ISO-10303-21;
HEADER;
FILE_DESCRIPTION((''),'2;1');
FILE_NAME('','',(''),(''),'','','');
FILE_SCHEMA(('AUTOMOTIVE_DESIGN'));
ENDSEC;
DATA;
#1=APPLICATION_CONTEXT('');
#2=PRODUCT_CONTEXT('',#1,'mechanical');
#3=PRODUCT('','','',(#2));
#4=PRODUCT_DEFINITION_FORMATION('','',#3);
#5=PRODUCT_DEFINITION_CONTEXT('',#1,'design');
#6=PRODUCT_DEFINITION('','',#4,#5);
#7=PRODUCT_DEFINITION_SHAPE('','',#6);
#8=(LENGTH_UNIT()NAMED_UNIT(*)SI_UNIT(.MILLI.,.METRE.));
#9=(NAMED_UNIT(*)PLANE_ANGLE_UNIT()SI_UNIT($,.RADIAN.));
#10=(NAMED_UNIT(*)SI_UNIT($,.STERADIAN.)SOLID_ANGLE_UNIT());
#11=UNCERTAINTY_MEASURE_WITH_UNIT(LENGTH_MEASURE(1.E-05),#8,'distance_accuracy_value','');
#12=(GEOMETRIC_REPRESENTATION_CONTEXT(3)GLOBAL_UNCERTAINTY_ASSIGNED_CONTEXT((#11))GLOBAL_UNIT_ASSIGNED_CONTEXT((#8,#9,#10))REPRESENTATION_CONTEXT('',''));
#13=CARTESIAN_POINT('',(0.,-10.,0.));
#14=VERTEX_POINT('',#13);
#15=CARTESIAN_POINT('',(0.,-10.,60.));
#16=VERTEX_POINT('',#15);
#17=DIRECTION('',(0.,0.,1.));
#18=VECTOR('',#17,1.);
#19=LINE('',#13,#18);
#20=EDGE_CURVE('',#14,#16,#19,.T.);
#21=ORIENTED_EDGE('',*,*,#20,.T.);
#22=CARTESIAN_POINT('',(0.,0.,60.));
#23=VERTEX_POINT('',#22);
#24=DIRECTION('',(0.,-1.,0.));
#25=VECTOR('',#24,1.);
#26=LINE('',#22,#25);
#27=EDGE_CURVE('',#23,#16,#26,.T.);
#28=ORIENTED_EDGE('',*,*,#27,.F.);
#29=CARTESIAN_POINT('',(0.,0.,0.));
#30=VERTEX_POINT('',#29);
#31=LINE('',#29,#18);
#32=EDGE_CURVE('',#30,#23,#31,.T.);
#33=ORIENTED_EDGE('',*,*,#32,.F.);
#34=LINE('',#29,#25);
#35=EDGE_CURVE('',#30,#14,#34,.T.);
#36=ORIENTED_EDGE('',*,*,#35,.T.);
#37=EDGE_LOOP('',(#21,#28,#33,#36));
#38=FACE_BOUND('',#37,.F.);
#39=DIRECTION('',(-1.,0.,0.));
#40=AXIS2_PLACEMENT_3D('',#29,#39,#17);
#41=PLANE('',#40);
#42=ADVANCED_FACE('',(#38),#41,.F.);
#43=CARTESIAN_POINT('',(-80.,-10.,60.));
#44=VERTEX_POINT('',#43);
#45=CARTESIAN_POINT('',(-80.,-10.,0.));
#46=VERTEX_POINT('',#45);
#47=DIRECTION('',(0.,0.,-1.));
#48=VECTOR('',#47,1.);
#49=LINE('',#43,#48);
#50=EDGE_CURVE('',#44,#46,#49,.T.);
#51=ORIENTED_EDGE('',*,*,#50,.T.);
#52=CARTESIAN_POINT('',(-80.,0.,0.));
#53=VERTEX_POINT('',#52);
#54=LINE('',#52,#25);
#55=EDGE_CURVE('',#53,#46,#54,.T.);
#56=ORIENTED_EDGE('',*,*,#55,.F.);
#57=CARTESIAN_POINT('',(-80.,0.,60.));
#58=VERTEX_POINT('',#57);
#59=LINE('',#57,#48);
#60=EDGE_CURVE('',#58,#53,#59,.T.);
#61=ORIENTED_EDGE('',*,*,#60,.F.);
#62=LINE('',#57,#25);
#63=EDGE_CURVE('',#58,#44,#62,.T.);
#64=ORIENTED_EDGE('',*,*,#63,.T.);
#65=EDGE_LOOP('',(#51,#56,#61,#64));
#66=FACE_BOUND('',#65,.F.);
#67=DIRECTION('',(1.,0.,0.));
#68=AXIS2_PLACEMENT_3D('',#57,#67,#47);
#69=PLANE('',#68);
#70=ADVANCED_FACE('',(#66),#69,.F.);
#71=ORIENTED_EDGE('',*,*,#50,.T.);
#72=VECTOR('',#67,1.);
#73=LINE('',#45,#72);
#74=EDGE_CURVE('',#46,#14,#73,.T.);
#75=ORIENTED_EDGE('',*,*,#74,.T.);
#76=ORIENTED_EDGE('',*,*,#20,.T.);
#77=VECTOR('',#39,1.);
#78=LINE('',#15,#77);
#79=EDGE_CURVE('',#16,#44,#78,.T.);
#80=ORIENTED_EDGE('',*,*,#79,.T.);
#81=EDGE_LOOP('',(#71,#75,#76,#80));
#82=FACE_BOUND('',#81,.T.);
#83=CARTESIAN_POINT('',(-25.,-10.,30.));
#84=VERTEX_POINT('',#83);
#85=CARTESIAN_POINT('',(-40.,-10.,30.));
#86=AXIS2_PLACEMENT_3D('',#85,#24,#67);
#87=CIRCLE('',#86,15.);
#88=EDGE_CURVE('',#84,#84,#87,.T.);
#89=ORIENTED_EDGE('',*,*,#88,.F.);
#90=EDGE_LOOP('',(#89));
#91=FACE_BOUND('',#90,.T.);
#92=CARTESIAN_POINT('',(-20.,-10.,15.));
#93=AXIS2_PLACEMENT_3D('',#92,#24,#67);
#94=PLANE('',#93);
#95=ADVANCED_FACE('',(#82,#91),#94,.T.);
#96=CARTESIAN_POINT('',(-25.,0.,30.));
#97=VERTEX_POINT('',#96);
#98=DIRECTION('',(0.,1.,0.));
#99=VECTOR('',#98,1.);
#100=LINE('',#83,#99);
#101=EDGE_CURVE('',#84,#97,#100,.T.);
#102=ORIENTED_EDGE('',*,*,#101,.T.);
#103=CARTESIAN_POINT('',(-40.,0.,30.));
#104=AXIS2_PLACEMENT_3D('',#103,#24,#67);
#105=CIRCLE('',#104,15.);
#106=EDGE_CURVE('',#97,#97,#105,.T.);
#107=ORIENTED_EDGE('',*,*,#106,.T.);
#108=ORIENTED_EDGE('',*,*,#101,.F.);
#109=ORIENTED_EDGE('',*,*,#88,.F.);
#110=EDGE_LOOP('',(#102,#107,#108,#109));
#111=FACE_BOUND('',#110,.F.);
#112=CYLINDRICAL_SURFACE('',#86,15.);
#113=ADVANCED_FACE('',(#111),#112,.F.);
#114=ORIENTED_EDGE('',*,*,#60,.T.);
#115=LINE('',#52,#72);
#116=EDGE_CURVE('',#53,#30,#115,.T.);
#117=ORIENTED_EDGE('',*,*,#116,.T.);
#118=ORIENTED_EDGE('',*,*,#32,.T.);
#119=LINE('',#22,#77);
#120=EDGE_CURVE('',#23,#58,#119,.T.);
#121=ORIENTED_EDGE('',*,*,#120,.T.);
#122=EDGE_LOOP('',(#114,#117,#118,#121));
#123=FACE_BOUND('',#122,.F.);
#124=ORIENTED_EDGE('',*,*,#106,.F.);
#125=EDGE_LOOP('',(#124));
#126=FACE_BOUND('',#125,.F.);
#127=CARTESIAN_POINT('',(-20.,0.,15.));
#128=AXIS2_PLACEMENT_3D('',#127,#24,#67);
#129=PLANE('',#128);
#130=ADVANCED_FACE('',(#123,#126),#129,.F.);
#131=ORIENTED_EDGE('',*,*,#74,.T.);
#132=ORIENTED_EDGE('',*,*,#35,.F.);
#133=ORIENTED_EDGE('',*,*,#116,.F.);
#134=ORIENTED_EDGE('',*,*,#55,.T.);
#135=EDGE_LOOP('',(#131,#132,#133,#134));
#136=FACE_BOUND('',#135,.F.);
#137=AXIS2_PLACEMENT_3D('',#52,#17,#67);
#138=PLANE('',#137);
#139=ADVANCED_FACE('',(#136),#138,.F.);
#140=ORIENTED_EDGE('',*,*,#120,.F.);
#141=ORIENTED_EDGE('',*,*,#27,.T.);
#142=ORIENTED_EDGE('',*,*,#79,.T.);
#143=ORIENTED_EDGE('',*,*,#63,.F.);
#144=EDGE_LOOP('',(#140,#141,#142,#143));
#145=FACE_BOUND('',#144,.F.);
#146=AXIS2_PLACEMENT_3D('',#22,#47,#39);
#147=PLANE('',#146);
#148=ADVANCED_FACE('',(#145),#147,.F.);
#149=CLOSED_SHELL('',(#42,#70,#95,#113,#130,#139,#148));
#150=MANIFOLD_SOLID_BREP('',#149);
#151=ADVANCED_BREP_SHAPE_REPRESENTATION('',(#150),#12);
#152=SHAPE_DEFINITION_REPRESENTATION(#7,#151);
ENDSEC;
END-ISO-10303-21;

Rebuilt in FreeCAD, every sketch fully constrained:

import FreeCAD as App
import Part
import Sketcher
from FreeCAD import Vector


def add_polygon(sketch, points):
    """Adds a closed chain of lines whose ends are joined by coincident constraints."""
    first, n = sketch.GeometryCount, len(points)
    for a, b in zip(points, points[1:] + points[:1]):
        sketch.addGeometry(Part.LineSegment(App.Vector(*a, 0), App.Vector(*b, 0)), False)
    for i in range(n):
        sketch.addConstraint(Sketcher.Constraint("Coincident", first + i, 2, first + (i + 1) % n, 1))

doc = App.newDocument("Part")
params = doc.addObject("Spreadsheet::Sheet", "Params")
for row, (alias, value) in enumerate([
    ("sketch1_width", "80 mm"),
    ("sketch1_height", "60 mm"),
    ("pad1_length", "10 mm"),
    ("sketch2_diameter", "30 mm"),
], start=1):
    params.set(f"A{row}", alias)
    params.set(f"B{row}", "=" + value)
    params.setAlias(f"B{row}", alias)

body = doc.addObject("PartDesign::Body", "Body")

# Sketch on XZ plane
sketch1 = doc.addObject("Sketcher::SketchObject", "Sketch")
body.addObject(sketch1)
sketch1.AttachmentSupport = (doc.XZ_Plane, [""])
sketch1.MapMode = "FlatFace"
add_polygon(sketch1, [(0, 0), (0, 60), (-80, 60), (-80, 0)])  # lines 0-3
sketch1.addConstraint([
    Sketcher.Constraint("Vertical", 0),
    Sketcher.Constraint("Horizontal", 1),
    Sketcher.Constraint("Vertical", 2),
    Sketcher.Constraint("Horizontal", 3),
    Sketcher.Constraint("Coincident", 3, 2, -1, 1),
    Sketcher.Constraint("DistanceX", 1, 2, 1, 1, 80.0),
    Sketcher.Constraint("DistanceY", 0, 1, 0, 2, 60.0),
])
sketch1.setExpression("Constraints[9]", "Params.sketch1_width")
sketch1.setExpression("Constraints[10]", "Params.sketch1_height")
pad1 = doc.addObject("PartDesign::Pad", "Pad")
body.addObject(pad1)
pad1.Profile = sketch1
pad1.setExpression("Length", "Params.pad1_length")

# Sketch on XZ plane
sketch2 = doc.addObject("Sketcher::SketchObject", "Sketch001")
body.addObject(sketch2)
sketch2.AttachmentSupport = (doc.XZ_Plane, [""])
sketch2.MapMode = "FlatFace"
sketch2.AttachmentOffset = App.Placement(Vector(0, 0, 10), App.Rotation())
sketch2.addGeometry(Part.Circle(Vector(-40, 30, 0), Vector(0, 0, 1), 15), False)
sketch2.addConstraint([
    Sketcher.Constraint("Diameter", 0, 30.0),
    Sketcher.Constraint("DistanceX", 0, 3, -1, 1, 40.0),
    Sketcher.Constraint("DistanceY", -1, 1, 0, 3, 30.0),
])
sketch2.setExpression("Constraints[0]", "Params.sketch2_diameter")
pocket1 = doc.addObject("PartDesign::Pocket", "Pocket")
body.addObject(pocket1)
pocket1.Profile = sketch2
pocket1.Type = "ThroughAll"

doc.recompute()
